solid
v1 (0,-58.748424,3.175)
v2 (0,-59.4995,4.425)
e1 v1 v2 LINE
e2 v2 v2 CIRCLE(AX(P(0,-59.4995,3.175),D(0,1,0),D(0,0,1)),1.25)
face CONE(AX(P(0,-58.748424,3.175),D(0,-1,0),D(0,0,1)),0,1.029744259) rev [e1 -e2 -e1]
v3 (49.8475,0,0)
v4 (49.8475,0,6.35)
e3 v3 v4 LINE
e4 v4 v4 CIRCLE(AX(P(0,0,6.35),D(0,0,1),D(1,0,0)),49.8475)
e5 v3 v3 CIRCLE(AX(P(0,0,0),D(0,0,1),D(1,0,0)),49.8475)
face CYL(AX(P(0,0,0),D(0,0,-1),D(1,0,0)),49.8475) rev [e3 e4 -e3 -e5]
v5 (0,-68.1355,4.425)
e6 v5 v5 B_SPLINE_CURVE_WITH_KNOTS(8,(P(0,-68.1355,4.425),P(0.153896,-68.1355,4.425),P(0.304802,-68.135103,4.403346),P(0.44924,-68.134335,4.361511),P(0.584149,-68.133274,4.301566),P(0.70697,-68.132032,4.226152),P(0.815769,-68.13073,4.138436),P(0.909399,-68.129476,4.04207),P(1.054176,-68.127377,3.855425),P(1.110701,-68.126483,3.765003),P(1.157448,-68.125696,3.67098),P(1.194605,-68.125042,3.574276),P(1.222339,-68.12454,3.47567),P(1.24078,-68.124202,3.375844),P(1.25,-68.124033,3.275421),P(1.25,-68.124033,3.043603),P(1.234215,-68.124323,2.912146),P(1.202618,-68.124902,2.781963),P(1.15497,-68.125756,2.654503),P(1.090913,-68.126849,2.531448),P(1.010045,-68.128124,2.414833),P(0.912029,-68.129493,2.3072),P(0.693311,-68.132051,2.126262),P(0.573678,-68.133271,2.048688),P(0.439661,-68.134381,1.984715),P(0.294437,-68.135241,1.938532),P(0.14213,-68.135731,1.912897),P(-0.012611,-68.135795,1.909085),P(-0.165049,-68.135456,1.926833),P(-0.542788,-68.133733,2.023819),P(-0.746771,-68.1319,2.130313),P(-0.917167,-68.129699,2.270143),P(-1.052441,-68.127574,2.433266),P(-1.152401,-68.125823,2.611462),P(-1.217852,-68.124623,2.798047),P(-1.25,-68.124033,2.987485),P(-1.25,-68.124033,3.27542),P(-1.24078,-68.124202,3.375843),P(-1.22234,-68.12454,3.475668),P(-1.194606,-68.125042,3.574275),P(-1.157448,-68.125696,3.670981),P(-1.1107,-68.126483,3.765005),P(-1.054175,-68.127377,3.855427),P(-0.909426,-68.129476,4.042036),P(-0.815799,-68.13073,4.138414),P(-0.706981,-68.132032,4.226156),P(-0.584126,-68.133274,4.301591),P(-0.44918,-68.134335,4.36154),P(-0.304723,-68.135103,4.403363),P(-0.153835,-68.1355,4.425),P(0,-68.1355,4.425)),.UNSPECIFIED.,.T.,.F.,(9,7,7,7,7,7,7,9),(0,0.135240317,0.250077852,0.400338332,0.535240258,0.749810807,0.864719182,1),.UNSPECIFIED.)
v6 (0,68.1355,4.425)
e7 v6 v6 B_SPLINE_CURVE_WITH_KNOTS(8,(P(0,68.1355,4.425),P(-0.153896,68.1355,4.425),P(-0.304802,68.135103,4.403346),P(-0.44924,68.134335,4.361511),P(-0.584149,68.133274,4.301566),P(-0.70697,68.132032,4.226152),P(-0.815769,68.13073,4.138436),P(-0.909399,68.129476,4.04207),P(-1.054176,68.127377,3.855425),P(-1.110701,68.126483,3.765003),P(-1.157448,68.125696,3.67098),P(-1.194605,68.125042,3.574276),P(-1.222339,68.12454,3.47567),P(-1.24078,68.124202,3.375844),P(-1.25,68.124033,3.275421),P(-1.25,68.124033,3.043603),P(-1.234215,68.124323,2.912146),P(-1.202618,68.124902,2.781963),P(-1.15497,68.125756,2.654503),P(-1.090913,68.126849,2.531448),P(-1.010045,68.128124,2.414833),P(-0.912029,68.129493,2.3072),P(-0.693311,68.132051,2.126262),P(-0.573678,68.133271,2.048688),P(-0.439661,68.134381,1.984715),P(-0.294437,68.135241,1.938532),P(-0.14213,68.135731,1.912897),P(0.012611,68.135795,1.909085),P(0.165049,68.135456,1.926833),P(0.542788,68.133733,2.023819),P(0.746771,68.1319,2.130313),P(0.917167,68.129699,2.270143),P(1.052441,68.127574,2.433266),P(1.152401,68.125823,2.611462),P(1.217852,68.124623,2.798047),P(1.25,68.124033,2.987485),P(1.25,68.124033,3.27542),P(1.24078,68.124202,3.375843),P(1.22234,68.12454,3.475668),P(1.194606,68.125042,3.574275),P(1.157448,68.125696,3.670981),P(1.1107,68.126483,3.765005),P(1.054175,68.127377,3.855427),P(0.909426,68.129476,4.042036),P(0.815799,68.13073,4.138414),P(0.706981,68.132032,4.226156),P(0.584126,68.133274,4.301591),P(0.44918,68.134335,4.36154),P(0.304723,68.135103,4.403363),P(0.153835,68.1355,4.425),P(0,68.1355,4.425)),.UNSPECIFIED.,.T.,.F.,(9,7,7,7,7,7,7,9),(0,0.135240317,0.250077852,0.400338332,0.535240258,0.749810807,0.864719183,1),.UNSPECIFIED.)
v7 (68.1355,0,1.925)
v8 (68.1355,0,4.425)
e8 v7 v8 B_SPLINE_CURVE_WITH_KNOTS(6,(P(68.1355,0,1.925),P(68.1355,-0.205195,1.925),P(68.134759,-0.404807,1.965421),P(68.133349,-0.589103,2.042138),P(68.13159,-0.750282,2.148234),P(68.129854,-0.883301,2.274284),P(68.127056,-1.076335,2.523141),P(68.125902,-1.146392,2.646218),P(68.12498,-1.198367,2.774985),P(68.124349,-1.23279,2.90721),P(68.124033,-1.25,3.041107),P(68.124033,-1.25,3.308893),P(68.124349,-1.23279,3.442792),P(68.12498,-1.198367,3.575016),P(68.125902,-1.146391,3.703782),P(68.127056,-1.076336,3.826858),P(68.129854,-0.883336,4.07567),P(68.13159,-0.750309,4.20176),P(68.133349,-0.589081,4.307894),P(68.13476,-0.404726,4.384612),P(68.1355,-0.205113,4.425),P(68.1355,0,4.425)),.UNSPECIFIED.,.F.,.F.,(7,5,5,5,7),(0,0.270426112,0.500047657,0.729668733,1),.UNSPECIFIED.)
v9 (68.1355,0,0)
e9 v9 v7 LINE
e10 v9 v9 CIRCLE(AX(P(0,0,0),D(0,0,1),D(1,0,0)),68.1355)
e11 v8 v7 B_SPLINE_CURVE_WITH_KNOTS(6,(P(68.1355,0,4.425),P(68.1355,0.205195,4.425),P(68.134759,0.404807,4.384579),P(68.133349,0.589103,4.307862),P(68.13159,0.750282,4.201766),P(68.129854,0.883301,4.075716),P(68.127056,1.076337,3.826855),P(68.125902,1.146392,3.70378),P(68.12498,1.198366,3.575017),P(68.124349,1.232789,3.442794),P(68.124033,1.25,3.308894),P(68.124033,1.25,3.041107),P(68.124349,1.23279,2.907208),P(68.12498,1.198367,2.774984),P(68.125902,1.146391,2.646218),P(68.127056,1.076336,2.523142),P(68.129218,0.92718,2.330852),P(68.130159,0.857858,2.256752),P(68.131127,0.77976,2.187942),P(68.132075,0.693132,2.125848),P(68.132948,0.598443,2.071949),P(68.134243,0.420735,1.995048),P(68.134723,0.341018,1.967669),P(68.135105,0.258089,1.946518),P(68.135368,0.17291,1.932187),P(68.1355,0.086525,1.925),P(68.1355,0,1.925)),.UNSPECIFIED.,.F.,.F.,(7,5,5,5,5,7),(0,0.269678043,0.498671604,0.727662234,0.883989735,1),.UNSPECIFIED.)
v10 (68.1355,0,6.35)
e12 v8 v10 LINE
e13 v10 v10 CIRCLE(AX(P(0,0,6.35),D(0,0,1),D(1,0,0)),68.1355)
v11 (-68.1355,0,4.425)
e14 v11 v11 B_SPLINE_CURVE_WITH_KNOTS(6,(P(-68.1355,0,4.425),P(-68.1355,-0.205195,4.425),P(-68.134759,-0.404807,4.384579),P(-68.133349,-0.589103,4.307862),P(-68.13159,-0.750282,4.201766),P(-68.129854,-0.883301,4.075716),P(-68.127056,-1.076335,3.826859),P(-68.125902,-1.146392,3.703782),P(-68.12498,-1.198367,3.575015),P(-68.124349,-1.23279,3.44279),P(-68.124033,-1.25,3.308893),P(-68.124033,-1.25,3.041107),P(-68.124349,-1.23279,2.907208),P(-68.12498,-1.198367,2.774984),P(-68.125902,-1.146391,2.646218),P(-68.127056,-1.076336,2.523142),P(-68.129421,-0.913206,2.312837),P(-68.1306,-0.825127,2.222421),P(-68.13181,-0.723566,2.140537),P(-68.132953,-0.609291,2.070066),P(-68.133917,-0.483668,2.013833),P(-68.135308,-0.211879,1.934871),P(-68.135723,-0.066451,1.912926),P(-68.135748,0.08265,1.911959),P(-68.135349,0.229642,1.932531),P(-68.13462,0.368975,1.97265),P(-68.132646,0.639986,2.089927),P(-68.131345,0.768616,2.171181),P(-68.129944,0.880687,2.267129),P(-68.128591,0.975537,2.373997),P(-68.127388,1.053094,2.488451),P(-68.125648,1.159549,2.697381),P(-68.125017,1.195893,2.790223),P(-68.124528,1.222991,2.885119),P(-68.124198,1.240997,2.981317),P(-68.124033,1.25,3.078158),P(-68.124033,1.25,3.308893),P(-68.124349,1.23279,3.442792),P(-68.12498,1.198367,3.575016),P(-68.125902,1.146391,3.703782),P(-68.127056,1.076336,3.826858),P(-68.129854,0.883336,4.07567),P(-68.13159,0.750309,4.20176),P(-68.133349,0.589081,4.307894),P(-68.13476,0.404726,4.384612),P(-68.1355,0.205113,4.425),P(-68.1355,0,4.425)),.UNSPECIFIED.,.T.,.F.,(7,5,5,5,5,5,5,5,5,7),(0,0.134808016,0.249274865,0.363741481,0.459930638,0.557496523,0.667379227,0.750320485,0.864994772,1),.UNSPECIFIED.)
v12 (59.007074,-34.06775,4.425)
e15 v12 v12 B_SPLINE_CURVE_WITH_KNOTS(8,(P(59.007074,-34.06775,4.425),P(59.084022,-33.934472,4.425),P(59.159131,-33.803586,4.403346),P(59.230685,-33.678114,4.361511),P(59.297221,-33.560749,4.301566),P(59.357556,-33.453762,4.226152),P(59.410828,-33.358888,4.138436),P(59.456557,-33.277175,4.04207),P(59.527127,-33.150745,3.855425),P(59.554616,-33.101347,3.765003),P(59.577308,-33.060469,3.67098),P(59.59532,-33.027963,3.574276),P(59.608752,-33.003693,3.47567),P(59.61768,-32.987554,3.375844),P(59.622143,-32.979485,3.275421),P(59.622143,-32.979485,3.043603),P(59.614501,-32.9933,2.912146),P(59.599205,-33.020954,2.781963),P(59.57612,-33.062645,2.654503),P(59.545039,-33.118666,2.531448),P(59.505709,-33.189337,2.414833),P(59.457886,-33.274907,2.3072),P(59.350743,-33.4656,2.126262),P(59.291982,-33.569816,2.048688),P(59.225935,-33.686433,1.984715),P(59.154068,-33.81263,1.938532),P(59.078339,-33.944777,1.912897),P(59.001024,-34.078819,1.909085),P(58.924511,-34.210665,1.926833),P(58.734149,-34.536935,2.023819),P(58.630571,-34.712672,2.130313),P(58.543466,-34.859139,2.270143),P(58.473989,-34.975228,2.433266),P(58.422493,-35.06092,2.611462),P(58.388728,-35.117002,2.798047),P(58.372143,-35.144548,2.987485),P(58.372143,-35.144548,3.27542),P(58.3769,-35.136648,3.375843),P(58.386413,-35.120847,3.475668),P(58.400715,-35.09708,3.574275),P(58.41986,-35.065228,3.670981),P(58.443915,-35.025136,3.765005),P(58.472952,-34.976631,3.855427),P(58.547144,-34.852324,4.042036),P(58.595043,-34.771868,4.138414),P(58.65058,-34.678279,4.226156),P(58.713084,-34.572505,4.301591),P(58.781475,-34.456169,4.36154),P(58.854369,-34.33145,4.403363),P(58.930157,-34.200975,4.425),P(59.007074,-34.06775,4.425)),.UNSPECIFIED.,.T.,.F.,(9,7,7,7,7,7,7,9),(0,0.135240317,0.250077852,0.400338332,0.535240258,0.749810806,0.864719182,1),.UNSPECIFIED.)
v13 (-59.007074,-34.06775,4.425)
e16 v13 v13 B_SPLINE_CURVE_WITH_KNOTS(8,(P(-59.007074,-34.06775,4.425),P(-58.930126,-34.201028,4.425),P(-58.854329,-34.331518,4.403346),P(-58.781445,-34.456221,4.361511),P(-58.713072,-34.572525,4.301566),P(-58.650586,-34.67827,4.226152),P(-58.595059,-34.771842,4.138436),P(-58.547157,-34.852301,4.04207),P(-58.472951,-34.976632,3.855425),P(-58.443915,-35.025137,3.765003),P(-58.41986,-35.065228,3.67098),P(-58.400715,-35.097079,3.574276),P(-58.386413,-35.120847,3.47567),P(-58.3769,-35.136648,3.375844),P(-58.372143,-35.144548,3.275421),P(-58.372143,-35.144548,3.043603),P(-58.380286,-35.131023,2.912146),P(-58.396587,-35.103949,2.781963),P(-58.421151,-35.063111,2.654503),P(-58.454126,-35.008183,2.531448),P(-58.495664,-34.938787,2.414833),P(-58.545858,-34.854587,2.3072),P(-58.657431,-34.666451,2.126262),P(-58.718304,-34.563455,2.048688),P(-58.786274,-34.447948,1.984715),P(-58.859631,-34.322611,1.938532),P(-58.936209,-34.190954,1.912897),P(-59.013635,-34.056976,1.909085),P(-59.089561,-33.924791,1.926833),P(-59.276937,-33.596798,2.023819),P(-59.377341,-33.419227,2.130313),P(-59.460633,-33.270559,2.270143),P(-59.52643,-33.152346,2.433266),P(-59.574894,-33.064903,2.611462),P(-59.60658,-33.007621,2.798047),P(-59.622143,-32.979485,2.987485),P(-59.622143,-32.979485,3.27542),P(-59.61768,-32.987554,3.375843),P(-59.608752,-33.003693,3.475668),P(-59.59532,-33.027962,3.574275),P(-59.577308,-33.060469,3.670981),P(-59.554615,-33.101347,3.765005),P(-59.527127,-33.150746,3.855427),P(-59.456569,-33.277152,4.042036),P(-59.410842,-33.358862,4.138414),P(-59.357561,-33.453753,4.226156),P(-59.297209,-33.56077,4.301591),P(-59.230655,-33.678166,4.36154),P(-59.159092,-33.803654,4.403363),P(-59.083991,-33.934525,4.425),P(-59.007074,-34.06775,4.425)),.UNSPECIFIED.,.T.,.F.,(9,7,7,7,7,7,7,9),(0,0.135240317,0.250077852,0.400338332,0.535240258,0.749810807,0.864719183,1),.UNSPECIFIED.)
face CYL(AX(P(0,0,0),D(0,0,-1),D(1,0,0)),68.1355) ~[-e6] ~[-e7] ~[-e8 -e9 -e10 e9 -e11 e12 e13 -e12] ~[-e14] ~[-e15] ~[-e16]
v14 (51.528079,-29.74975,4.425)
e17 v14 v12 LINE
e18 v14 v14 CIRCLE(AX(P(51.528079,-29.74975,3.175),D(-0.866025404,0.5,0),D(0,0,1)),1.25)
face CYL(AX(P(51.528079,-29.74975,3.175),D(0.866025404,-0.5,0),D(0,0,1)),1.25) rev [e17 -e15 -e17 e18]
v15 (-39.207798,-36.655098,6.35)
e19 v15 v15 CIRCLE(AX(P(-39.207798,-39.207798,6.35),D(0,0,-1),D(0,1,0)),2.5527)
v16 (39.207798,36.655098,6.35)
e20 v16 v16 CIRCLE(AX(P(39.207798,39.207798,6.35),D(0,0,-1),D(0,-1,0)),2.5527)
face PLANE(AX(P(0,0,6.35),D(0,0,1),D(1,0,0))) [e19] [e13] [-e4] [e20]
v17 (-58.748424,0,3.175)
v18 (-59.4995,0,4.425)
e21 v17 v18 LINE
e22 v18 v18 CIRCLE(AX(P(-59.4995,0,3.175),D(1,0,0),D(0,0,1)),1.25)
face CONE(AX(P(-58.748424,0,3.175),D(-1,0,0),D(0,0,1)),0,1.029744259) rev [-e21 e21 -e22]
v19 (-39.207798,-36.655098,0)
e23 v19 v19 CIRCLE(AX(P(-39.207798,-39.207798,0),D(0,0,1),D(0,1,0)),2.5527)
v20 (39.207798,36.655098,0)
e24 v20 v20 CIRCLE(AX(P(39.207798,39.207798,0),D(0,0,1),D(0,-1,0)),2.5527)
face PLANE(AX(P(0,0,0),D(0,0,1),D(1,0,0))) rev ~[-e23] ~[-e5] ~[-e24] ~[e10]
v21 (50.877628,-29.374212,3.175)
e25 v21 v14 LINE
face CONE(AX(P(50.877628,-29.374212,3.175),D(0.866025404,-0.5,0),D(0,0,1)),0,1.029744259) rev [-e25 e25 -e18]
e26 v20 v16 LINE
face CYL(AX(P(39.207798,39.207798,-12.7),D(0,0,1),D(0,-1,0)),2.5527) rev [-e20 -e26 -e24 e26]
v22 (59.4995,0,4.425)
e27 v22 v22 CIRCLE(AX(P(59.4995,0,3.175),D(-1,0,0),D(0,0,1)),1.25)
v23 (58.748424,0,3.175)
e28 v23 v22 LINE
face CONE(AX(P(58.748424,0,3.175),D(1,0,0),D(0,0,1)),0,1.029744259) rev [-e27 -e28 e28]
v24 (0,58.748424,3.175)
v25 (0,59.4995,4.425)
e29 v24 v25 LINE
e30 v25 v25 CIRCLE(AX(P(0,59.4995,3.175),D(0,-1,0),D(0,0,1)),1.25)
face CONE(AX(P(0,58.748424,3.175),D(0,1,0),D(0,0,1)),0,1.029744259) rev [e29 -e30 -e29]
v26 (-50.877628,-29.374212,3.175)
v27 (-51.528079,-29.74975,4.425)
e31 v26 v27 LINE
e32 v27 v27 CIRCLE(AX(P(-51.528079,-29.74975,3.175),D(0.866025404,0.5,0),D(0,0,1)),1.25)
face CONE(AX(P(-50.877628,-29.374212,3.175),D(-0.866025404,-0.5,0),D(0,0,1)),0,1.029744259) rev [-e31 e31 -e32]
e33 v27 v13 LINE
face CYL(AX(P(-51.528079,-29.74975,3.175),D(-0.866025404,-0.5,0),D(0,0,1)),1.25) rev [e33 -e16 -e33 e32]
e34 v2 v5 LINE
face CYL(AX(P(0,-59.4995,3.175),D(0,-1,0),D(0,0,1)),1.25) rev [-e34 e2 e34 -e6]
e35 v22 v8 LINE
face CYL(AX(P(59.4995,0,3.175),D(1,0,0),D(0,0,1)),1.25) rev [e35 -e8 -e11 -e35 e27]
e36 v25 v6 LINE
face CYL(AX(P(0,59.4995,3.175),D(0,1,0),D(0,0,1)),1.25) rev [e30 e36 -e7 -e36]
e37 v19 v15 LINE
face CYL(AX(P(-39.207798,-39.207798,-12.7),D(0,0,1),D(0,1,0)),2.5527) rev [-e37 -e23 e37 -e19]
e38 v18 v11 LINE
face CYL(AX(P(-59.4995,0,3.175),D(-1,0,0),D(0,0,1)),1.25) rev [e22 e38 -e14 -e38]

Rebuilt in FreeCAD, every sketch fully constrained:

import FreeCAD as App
import Part
import Sketcher
from FreeCAD import Vector
Q = App.Units.Quantity


def add_polygon(sketch, points):
    """Adds a closed chain of lines whose ends are joined by coincident constraints."""
    first, n = sketch.GeometryCount, len(points)
    for a, b in zip(points, points[1:] + points[:1]):
        sketch.addGeometry(Part.LineSegment(App.Vector(*a, 0), App.Vector(*b, 0)), False)
    for i in range(n):
        sketch.addConstraint(Sketcher.Constraint("Coincident", first + i, 2, first + (i + 1) % n, 1))

doc = App.newDocument("Part")
body = doc.addObject("PartDesign::Body", "Body")

# Sketch on XY plane
sketch1 = doc.addObject("Sketcher::SketchObject", "Sketch")
body.addObject(sketch1)
sketch1.AttachmentSupport = (doc.XY_Plane, [""])
sketch1.MapMode = "FlatFace"
sketch1.addGeometry([
    Part.Circle(Vector(0, 0, 0), Vector(0, 0, 1), 68.1355),
    Part.Circle(Vector(0, 0, 0), Vector(0, 0, 1), 49.8475),
], False)
sketch1.addConstraint([
    Sketcher.Constraint("Coincident", 0, 3, -1, 1),
    Sketcher.Constraint("Coincident", 1, 3, -1, 1),
    Sketcher.Constraint("Diameter", 0, Q("5.365 in")),
    Sketcher.Constraint("Diameter", 1, Q("3.925 in")),
])
pad1 = doc.addObject("PartDesign::Pad", "Pad")
body.addObject(pad1)
pad1.Profile = sketch1
pad1.Length = Q("0.25 in")

# Sketch on YZ plane
sketch2 = doc.addObject("Sketcher::SketchObject", "Sketch001")
body.addObject(sketch2)
sketch2.AttachmentSupport = (doc.YZ_Plane, [""])
sketch2.MapMode = "FlatFace"
add_polygon(sketch2, [(58.748424, 3.175), (68.1355, 3.175), (68.1355, 4.425), (59.4995, 4.425)])  # lines 0-3
sketch2.addGeometry(Part.LineSegment(Vector(68.1355, 3.175, 0), Vector(58.748424, 3.175, 0)), True)  # axis
sketch2.addConstraint([
    Sketcher.Constraint("Horizontal", 0),
    Sketcher.Constraint("Vertical", 1),
    Sketcher.Constraint("Horizontal", 2),
    Sketcher.Constraint("Horizontal", 4),
    Sketcher.Constraint("Coincident", 4, 1, 0, 2),
    Sketcher.Constraint("Equal", 0, 4),
    Sketcher.Constraint("Angle", 3, Q("-121 deg")),
    Sketcher.Constraint("DistanceX", 2, 2, 2, 1, Q("0.34 in")),
    Sketcher.Constraint("DistanceY", -1, 1, 0, 2, Q("0.125 in")),
    Sketcher.Constraint("DistanceY", 1, 1, 1, 2, 1.25),
    Sketcher.Constraint("DistanceX", -1, 1, 0, 2, Q("2.6825 in")),
])
groove = doc.addObject("PartDesign::Groove", "Groove")
body.addObject(groove)
groove.Profile = sketch2
groove.ReferenceAxis = (sketch2, ["Axis0"])
groove.Angle = 360
doc.recompute()

polarpattern = doc.addObject("PartDesign::PolarPattern", "PolarPattern")
body.addObject(polarpattern)
polarpattern.Originals = [groove]
polarpattern.Axis = (doc.Z_Axis, [""])
polarpattern.Angle = 360
polarpattern.Occurrences = 4
body.Tip = polarpattern
doc.recompute()

polarpattern2 = doc.addObject("PartDesign::PolarPattern", "PolarPattern001")
body.addObject(polarpattern2)
polarpattern2.Originals = [groove]
polarpattern2.Axis = (doc.Z_Axis, [""])
polarpattern2.Angle = 360
polarpattern2.Occurrences = 3
body.Tip = polarpattern2

# Sketch on YZ plane
sketch3 = doc.addObject("Sketcher::SketchObject", "Sketch002")
body.addObject(sketch3)
sketch3.AttachmentSupport = (doc.YZ_Plane, [""])
sketch3.MapMode = "FlatFace"
sketch3.AttachmentOffset = App.Placement(Vector(0, 0, 39.207798), App.Rotation())
add_polygon(sketch3, [(39.207798, -14.233817), (39.207798, 6.35), (36.655098, 6.35), (36.655098, -12.7)])  # lines 0-3
sketch3.addGeometry(Part.LineSegment(Vector(39.207798, 6.35, 0), Vector(39.207798, -14.233817, 0)), True)  # axis
sketch3.addConstraint([
    Sketcher.Constraint("Vertical", 0),
    Sketcher.Constraint("Horizontal", 1),
    Sketcher.Constraint("Vertical", 2),
    Sketcher.Constraint("Vertical", 4),
    Sketcher.Constraint("Coincident", 4, 1, 0, 2),
    Sketcher.Constraint("Equal", 0, 4),
    Sketcher.Constraint("Angle", 3, Q("-31 deg")),
    Sketcher.Constraint("DistanceY", 2, 2, 2, 1, Q("0.75 in")),
    Sketcher.Constraint("DistanceY", 2, 2, -1, 1, Q("0.5 in")),
    Sketcher.Constraint("DistanceX", 1, 2, 1, 1, Q("0.1005 in")),
    Sketcher.Constraint("DistanceX", -1, 1, 0, 2, 39.207798),
])
groove2 = doc.addObject("PartDesign::Groove", "Groove001")
body.addObject(groove2)
groove2.Profile = sketch3
groove2.ReferenceAxis = (sketch3, ["Axis0"])
groove2.Angle = 360
doc.recompute()

polarpattern3 = doc.addObject("PartDesign::PolarPattern", "PolarPattern002")
body.addObject(polarpattern3)
polarpattern3.Originals = [groove2]
polarpattern3.Axis = (doc.Z_Axis, [""])
polarpattern3.Angle = 360
polarpattern3.Occurrences = 2
body.Tip = polarpattern3

doc.recompute()
